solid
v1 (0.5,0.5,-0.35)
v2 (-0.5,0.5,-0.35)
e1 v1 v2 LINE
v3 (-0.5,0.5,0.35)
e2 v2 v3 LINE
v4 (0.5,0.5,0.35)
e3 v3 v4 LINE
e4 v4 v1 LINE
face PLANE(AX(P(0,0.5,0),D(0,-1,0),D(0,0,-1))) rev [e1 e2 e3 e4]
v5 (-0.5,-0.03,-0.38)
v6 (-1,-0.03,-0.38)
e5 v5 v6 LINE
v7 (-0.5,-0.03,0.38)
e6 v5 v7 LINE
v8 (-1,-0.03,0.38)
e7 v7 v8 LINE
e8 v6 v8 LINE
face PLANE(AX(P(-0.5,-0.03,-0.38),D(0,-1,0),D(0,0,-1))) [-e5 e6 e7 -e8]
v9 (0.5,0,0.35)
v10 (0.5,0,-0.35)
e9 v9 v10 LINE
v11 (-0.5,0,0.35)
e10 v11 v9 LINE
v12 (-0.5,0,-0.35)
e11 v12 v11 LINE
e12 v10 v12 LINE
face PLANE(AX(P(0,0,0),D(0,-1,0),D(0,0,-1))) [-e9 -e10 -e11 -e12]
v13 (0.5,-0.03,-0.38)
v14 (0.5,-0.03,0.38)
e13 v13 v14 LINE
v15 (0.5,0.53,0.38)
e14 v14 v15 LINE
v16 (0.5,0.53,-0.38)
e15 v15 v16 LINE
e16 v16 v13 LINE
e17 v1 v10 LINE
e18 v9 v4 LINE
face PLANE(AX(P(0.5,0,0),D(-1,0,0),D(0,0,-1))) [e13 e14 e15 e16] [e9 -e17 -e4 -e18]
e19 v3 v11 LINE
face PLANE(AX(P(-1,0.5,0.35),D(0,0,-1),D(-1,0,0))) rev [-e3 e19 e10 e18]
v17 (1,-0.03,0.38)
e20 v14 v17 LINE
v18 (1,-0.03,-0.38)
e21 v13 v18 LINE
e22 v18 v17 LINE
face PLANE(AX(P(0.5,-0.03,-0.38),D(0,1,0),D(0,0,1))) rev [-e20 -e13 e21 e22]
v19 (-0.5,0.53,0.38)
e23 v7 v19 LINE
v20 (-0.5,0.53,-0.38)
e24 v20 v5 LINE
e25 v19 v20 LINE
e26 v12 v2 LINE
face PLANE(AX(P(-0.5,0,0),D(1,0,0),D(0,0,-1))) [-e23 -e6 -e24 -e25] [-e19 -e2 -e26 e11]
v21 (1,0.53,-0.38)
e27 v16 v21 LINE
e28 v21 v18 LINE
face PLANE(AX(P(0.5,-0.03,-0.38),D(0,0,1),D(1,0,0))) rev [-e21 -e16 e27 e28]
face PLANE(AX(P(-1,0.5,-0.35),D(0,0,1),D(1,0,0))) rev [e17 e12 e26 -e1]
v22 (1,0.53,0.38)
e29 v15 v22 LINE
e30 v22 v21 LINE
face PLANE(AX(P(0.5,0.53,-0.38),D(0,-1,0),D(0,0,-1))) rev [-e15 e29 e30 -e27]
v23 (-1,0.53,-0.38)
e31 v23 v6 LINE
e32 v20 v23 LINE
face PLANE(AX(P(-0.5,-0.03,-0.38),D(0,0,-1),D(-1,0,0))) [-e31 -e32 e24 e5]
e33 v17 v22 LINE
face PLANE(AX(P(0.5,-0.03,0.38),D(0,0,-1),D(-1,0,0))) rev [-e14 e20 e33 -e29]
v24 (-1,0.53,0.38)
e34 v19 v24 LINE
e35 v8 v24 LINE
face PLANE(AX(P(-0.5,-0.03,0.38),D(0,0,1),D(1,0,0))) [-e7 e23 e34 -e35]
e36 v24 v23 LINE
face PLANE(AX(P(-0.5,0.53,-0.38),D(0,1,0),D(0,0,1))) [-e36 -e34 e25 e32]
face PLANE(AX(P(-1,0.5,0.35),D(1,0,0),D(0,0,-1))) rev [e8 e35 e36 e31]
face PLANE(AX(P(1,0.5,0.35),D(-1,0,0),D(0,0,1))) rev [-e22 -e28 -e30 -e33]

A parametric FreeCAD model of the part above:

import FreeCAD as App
import Part
import Sketcher
from FreeCAD import Vector
Q = App.Units.Quantity


def add_polygon(sketch, points):
    """Adds a closed chain of lines whose ends are joined by coincident constraints."""
    first, n = sketch.GeometryCount, len(points)
    for a, b in zip(points, points[1:] + points[:1]):
        sketch.addGeometry(Part.LineSegment(App.Vector(*a, 0), App.Vector(*b, 0)), False)
    for i in range(n):
        sketch.addConstraint(Sketcher.Constraint("Coincident", first + i, 2, first + (i + 1) % n, 1))

doc = App.newDocument("Part")
body = doc.addObject("PartDesign::Body", "Body")

# Sketch on XZ plane
sketch1 = body.newObject("Sketcher::SketchObject", "Sketch")
sketch1.AttachmentSupport = (doc.getObject("XZ_Plane"), [""])
sketch1.MapMode = "FlatFace"
add_polygon(sketch1, [(-1, -0.3), (-1, 0.3), (1, 0.3), (1, -0.3)])  # lines 0-3
sketch1.addConstraint([
    Sketcher.Constraint("Vertical", 0),
    Sketcher.Constraint("Horizontal", 1),
    Sketcher.Constraint("Vertical", 2),
    Sketcher.Constraint("Horizontal", 3),
    Sketcher.Constraint("Symmetric", 0, 2, 2, 2, -1, 1),
    Sketcher.Constraint("DistanceX", 1, 1, 1, 2, Q("2 mm")),
    Sketcher.Constraint("DistanceY", 0, 1, 0, 2, Q("0.7 mm")),
])
pad1 = body.newObject("PartDesign::Pad", "Pad")
pad1.Profile = sketch1
pad1.Length = 0.5
pad1.Reversed = True

# Sketch on YZ plane
sketch2 = body.newObject("Sketcher::SketchObject", "Sketch001")
sketch2.AttachmentSupport = (doc.getObject("YZ_Plane"), [""])
sketch2.MapMode = "FlatFace"
sketch2.AttachmentOffset = App.Placement(Vector(0, 0, -1), App.Rotation())
add_polygon(sketch2, [(0.5, -0.4), (0, -0.4), (0, 0.4), (0.5, 0.4)])  # lines 0-3
sketch2.addConstraint([
    Sketcher.Constraint("Horizontal", 0),
    Sketcher.Constraint("Vertical", 1),
    Sketcher.Constraint("Horizontal", 2),
    Sketcher.Constraint("Vertical", 3),
    Sketcher.Constraint("DistanceX", 0, 2, 0, 1, Q("0.56 mm")),
    Sketcher.Constraint("DistanceY", 1, 1, 1, 2, Q("0.76 mm")),
    Sketcher.Constraint("DistanceX", 0, 2, -1, 1, Q("0.03 mm")),
    Sketcher.Constraint("DistanceY", 0, 2, -1, 1, Q("0.38 mm")),
])
pad2 = body.newObject("PartDesign::Pad", "Pad001")
pad2.Profile = sketch2
pad2.Length = 0.5
doc.recompute()

mirrored = body.newObject("PartDesign::Mirrored", "Mirrored")
mirrored.Originals = [pad2]
mirrored.MirrorPlane = (doc.getObject("YZ_Plane"), [""])
body.Tip = mirrored

doc.recompute()
